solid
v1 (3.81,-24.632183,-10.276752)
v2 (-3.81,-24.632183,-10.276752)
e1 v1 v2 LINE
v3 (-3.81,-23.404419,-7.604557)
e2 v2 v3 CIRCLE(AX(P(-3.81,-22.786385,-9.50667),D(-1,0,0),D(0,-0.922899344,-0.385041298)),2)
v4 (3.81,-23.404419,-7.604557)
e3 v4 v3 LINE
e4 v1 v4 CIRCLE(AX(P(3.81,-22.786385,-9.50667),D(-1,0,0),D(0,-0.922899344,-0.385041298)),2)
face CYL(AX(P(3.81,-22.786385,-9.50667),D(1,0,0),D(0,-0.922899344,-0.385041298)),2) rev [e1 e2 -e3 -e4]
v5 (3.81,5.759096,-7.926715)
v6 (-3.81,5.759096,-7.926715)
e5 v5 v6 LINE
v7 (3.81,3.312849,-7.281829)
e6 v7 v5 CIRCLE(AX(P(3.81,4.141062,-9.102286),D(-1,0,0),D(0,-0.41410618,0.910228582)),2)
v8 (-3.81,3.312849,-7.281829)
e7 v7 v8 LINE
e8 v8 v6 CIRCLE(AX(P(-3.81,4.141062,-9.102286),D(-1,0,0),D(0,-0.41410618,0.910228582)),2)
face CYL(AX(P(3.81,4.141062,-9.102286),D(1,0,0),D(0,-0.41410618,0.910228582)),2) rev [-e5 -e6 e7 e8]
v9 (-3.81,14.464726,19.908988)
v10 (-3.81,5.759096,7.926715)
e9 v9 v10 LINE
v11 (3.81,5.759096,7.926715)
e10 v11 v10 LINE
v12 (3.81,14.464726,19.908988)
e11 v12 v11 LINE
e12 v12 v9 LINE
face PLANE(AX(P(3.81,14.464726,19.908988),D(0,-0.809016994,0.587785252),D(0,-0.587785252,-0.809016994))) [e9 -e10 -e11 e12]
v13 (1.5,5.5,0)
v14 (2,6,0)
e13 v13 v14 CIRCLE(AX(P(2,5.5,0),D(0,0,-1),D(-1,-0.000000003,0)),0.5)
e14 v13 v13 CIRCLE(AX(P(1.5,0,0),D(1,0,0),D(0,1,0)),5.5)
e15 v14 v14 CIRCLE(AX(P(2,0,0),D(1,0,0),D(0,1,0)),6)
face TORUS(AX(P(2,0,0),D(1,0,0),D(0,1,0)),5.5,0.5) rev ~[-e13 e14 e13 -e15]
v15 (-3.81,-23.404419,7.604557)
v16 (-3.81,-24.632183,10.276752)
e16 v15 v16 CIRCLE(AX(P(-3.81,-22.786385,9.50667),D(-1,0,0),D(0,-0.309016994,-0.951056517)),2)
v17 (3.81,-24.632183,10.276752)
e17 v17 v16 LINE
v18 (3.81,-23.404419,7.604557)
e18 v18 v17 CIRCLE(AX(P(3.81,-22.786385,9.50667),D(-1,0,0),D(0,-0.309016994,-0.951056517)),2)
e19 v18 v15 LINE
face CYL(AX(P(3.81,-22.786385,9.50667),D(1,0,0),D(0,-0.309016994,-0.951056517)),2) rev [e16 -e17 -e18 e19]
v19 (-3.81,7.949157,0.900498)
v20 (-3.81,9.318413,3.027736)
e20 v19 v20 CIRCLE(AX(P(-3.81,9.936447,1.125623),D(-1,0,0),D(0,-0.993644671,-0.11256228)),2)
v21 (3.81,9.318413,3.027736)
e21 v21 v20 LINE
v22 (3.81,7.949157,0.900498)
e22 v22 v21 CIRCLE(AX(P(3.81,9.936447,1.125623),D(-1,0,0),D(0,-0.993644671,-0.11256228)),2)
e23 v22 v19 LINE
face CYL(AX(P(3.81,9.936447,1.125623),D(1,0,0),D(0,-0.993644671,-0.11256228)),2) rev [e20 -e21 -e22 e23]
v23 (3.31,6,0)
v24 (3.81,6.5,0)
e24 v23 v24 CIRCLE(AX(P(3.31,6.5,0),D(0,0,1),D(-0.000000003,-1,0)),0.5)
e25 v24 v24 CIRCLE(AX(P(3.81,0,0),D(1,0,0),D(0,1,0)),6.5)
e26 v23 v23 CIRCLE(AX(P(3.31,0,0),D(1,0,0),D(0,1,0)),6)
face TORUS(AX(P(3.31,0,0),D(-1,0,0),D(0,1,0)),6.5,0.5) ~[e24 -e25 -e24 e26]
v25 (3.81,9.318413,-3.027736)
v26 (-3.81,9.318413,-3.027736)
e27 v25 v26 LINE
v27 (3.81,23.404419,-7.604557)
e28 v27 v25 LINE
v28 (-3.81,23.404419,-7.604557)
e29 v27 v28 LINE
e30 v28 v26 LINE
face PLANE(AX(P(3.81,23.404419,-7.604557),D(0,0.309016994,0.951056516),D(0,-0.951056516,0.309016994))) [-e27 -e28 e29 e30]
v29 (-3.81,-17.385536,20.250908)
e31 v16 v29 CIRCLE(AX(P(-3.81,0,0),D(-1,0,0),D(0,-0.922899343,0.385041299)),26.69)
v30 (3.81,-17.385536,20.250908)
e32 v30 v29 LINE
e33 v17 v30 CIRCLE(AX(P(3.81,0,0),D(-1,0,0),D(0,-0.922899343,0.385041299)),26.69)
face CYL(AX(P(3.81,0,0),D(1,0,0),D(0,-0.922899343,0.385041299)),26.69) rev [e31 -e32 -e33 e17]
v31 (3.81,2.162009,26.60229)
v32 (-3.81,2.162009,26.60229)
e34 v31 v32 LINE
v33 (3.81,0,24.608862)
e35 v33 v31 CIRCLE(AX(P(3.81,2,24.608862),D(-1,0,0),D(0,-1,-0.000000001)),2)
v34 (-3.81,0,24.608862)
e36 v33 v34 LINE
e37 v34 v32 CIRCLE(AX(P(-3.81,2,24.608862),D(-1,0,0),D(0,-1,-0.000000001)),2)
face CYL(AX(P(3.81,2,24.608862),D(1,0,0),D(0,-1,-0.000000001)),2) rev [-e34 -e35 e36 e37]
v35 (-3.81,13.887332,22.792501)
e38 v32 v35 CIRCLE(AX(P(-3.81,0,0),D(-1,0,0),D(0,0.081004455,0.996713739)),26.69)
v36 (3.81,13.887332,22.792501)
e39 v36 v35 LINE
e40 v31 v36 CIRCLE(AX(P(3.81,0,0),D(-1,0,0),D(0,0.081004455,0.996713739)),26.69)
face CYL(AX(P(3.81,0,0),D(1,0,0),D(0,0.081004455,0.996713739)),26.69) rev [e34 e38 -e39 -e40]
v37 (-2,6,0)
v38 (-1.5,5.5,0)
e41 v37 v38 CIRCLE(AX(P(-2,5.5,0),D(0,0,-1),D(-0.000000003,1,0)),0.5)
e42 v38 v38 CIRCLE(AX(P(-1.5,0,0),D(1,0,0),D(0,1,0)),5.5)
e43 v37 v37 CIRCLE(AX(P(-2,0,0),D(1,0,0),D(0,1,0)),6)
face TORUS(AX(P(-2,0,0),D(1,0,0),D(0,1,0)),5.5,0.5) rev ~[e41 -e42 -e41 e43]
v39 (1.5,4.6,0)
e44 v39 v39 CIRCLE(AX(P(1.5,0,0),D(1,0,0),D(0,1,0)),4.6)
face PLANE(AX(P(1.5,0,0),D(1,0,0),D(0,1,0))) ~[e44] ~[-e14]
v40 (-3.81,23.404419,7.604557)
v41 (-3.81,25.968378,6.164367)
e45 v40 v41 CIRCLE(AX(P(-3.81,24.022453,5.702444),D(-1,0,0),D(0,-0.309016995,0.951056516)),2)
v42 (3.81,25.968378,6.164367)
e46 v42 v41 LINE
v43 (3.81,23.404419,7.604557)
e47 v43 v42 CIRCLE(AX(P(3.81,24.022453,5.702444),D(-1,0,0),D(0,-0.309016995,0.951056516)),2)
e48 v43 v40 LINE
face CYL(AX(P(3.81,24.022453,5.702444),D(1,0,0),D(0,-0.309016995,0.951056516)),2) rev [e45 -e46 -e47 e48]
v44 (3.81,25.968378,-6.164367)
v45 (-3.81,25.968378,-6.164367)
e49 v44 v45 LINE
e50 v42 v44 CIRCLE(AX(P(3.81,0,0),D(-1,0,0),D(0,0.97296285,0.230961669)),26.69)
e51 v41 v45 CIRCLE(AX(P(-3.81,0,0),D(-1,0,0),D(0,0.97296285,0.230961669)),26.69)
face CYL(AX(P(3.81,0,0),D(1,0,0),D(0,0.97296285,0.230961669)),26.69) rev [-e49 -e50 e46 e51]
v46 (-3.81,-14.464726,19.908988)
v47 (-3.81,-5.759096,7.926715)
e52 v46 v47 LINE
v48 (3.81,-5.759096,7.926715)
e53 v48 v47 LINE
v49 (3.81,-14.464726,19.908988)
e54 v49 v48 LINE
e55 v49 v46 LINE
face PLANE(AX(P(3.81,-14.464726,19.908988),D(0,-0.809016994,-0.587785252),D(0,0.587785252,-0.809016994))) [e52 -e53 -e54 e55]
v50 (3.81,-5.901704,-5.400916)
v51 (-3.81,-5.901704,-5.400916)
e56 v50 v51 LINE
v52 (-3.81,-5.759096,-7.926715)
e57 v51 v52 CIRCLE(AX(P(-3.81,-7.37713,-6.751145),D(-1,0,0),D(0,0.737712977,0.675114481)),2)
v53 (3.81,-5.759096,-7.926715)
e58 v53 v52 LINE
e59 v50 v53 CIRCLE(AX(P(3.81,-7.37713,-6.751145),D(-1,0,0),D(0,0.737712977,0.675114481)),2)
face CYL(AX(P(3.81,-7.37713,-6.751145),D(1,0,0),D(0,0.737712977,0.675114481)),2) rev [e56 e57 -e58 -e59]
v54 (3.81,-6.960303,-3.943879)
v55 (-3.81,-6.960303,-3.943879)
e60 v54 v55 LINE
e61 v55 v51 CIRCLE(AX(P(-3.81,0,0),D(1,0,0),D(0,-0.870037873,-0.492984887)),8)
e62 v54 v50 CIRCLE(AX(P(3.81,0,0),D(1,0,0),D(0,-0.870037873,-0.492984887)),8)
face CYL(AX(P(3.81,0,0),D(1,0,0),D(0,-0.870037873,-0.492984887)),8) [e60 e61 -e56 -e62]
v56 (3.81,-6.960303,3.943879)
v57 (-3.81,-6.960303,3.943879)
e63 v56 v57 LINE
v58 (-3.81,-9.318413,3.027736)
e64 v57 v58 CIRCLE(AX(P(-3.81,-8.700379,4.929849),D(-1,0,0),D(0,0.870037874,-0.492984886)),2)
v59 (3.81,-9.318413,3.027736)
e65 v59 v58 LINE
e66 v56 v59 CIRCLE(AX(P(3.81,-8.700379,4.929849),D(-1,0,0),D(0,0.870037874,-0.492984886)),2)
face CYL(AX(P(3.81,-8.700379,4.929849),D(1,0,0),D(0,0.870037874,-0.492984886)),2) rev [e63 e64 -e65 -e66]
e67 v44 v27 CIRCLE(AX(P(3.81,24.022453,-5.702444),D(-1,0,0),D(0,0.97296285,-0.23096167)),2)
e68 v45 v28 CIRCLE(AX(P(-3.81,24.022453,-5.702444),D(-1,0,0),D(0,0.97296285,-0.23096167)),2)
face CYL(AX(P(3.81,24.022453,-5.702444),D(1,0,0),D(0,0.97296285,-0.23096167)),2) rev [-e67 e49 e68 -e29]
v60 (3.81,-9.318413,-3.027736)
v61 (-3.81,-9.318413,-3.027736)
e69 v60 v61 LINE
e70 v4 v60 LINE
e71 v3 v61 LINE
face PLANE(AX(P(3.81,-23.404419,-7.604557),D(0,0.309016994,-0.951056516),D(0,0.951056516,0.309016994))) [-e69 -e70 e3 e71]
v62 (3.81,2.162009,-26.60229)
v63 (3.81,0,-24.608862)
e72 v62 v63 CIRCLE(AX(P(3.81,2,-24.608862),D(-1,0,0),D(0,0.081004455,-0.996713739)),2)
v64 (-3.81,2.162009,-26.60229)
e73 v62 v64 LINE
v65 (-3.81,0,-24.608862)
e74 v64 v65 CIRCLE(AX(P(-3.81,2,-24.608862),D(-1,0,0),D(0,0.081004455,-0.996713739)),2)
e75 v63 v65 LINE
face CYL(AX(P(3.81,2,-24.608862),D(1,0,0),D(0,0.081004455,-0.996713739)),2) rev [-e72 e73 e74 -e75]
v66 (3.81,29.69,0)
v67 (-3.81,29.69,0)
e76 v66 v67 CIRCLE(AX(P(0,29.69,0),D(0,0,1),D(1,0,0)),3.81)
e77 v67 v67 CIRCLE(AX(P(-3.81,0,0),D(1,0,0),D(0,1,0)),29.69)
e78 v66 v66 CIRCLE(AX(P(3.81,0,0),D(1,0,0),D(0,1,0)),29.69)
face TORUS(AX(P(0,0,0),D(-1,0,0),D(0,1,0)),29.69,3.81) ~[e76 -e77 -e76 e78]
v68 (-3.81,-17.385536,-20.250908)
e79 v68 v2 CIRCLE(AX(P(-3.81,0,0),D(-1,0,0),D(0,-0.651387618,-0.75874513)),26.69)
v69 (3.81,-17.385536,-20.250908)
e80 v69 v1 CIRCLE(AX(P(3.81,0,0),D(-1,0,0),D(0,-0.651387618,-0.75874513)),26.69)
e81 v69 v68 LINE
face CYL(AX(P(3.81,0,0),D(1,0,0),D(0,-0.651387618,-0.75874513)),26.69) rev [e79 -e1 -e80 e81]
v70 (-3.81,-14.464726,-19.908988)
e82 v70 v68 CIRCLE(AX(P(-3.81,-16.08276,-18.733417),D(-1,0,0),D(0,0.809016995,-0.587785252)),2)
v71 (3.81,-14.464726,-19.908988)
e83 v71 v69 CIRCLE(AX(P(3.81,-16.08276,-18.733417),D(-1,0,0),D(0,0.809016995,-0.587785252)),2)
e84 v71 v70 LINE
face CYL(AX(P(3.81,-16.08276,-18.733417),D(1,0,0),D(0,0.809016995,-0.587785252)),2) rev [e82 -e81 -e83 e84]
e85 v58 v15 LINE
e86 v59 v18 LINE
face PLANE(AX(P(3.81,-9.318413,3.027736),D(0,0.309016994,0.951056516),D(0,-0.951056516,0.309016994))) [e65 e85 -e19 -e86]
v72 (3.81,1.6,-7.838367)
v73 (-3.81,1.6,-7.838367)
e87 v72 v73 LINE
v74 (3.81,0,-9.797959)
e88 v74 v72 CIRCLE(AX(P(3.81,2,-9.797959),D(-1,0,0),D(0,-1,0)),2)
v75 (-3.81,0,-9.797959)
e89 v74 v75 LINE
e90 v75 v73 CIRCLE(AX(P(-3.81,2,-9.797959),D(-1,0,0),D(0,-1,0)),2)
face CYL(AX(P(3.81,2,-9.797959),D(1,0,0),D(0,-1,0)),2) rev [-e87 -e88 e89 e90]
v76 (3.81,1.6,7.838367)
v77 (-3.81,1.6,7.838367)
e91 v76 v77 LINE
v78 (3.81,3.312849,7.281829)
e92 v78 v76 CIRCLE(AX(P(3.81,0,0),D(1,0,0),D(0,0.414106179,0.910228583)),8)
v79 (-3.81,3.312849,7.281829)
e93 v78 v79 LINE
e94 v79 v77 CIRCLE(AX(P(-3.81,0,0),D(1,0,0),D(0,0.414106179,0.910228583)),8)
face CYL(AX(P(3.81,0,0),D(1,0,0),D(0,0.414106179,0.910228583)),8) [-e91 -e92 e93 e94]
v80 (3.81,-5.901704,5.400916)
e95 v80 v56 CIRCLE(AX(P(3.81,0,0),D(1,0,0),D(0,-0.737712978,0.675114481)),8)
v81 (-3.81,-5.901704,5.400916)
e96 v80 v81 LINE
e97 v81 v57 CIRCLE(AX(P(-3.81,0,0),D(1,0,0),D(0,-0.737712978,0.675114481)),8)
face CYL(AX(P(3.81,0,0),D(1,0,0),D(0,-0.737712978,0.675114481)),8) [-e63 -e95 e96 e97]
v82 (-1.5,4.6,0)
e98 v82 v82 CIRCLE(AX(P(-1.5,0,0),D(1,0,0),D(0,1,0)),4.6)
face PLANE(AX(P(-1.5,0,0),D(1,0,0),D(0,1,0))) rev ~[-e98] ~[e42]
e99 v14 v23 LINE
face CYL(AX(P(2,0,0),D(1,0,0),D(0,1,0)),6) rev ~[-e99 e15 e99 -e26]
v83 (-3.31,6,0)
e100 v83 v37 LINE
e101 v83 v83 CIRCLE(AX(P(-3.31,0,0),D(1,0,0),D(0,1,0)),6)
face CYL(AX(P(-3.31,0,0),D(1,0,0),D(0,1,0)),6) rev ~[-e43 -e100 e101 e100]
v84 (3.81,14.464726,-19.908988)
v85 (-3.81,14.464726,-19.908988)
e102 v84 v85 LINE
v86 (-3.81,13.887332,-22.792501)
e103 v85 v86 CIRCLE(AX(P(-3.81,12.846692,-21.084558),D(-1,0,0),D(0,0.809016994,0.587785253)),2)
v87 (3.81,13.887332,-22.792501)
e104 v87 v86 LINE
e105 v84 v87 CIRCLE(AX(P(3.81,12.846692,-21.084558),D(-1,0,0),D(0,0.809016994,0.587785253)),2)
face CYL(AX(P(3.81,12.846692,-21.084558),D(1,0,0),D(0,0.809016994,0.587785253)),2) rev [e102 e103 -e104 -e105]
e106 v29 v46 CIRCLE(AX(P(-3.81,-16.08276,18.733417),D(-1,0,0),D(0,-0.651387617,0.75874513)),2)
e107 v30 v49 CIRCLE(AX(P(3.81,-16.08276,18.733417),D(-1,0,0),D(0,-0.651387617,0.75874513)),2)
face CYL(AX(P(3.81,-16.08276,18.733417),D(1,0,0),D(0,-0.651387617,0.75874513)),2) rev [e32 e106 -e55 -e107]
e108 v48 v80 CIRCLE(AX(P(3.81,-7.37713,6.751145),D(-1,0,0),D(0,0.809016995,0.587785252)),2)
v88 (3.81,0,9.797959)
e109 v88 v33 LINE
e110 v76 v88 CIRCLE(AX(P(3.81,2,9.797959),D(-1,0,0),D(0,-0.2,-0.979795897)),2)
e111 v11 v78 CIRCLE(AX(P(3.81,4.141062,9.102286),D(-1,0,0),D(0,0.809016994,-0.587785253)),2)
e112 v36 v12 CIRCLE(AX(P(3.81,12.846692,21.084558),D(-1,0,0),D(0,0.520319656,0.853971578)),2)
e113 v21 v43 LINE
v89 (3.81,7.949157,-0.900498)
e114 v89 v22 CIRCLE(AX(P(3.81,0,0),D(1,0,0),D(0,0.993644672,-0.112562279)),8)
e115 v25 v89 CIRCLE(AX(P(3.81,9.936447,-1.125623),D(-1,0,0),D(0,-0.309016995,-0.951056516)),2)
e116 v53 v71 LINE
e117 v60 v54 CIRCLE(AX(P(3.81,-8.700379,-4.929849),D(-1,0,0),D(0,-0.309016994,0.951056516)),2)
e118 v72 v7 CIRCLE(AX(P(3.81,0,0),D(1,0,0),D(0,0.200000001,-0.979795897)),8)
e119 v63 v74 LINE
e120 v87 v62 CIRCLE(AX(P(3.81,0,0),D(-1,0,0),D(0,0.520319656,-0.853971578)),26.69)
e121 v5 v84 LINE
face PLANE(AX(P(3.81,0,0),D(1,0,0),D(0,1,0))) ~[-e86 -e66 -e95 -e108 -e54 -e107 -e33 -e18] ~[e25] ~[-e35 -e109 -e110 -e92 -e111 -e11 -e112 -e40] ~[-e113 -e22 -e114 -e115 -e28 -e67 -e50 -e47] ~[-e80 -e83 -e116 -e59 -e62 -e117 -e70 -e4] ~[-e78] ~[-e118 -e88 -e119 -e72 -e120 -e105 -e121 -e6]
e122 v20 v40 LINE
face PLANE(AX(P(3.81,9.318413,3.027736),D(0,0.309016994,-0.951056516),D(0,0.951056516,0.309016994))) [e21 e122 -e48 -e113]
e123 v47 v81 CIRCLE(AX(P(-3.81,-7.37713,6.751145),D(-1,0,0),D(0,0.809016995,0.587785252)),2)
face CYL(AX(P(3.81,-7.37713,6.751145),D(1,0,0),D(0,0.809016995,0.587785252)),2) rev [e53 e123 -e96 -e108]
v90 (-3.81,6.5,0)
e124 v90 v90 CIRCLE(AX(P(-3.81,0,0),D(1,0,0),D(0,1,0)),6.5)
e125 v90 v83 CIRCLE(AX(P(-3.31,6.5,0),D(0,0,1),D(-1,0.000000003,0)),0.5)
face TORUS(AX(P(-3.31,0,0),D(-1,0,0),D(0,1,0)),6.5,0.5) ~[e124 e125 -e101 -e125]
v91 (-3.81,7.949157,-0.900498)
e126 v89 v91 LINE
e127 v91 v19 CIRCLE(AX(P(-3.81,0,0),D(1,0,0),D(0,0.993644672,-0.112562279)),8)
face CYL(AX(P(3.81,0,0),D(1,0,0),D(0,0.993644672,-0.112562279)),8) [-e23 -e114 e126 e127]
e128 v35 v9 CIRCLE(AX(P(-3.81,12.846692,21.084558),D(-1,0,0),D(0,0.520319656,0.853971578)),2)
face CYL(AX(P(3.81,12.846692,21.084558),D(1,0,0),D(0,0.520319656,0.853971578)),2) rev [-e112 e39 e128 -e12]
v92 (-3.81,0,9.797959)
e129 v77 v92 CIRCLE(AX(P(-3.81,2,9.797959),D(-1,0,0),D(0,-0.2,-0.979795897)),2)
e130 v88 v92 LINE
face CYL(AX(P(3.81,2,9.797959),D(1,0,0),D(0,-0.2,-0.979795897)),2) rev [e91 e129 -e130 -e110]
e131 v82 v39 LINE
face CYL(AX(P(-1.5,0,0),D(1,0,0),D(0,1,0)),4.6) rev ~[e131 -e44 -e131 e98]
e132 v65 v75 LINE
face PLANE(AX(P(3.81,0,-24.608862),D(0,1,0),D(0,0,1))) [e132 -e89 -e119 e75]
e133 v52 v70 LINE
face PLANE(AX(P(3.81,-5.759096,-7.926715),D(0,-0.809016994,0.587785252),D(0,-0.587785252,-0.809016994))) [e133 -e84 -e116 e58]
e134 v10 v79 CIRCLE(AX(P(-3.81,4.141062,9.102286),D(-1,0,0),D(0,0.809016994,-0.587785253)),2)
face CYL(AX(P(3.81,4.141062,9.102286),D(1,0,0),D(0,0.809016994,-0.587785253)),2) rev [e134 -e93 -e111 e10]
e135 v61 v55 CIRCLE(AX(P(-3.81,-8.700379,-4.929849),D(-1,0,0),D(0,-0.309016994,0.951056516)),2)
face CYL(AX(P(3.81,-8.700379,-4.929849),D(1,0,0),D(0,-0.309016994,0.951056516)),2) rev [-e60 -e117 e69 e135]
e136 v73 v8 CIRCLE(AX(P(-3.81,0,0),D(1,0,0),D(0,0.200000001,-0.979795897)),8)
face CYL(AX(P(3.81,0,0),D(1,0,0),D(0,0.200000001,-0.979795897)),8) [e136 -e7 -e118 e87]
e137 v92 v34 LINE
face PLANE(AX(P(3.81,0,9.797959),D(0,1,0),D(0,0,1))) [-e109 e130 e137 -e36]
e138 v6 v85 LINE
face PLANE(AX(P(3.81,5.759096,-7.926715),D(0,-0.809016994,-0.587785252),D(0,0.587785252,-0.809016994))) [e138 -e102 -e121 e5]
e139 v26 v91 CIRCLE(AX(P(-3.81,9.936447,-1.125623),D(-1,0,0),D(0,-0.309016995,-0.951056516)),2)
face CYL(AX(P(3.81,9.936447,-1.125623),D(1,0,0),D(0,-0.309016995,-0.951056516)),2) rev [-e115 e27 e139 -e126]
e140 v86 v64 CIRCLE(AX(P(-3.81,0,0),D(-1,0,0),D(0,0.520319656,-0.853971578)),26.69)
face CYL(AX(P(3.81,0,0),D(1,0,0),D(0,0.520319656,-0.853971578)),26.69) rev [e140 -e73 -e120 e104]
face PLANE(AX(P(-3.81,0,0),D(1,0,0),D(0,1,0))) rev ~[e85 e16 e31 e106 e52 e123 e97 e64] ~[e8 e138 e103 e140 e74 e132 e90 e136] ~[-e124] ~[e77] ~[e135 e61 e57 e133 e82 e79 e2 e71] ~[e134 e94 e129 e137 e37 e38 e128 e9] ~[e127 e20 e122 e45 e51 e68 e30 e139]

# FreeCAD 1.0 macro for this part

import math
import FreeCAD as App
import Part
import Sketcher

V = App.Vector
Q = App.Units.Quantity

doc = App.newDocument("Part")
body = doc.addObject("PartDesign::Body", "Body")

# Sketch on XY plane
sketch1 = body.newObject("Sketcher::SketchObject", "Sketch")
sketch1.AttachmentSupport = (doc.getObject("XY_Plane"), [""])
sketch1.MapMode = "FlatFace"
sketch1.addGeometry([
    Part.LineSegment(V(-1.5, 4.6, 0), V(1.5, 4.6, 0)),  # 0
    Part.LineSegment(V(1.5, 4.6, 0), V(1.5, 5.5, 0)),  # 1
    Part.ArcOfCircle(Part.Circle(V(2, 5.5, 0), V(0, 0, 1), 0.5), math.radians(90), math.radians(180)),  # 2
    Part.LineSegment(V(2, 6, 0), V(3.31, 6, 0)),  # 3
    Part.ArcOfCircle(Part.Circle(V(3.31, 6.5, 0), V(0, 0, 1), 0.5), math.radians(-90), math.radians(0)),  # 4
    Part.LineSegment(V(3.81, 6.5, 0), V(3.81, 29.69, 0)),  # 5
    Part.ArcOfCircle(Part.Circle(V(0, 29.69, 0), V(0, 0, 1), 3.81), math.radians(0), math.radians(180)),  # 6
    Part.LineSegment(V(-3.81, 29.69, 0), V(-3.81, 6.5, 0)),  # 7
    Part.ArcOfCircle(Part.Circle(V(-3.31, 6.5, 0), V(0, 0, 1), 0.5), math.radians(180), math.radians(270)),  # 8
    Part.LineSegment(V(-3.31, 6, 0), V(-2, 6, 0)),  # 9
    Part.ArcOfCircle(Part.Circle(V(-2, 5.5, 0), V(0, 0, 1), 0.5), math.radians(0), math.radians(90)),  # 10
    Part.LineSegment(V(-1.5, 5.5, 0), V(-1.5, 4.6, 0)),  # 11
], False)
sketch1.addConstraint([
    Sketcher.Constraint("Coincident", 0, 2, 1, 1),
    Sketcher.Constraint("Tangent", 1, 2, 2, 2),
    Sketcher.Constraint("Tangent", 2, 1, 3, 1),
    Sketcher.Constraint("Tangent", 3, 2, 4, 1),
    Sketcher.Constraint("Tangent", 4, 2, 5, 1),
    Sketcher.Constraint("Tangent", 5, 2, 6, 1),
    Sketcher.Constraint("Tangent", 6, 2, 7, 1),
    Sketcher.Constraint("Tangent", 7, 2, 8, 1),
    Sketcher.Constraint("Tangent", 8, 2, 9, 1),
    Sketcher.Constraint("Tangent", 9, 2, 10, 2),
    Sketcher.Constraint("Tangent", 10, 1, 11, 1),
    Sketcher.Constraint("Coincident", 11, 2, 0, 1),
    Sketcher.Constraint("Horizontal", 0),
    Sketcher.Constraint("Vertical", 1),
    Sketcher.Constraint("Horizontal", 3),
    Sketcher.Constraint("Vertical", 5),
    Sketcher.Constraint("Vertical", 7),
    Sketcher.Constraint("Horizontal", 9),
    Sketcher.Constraint("Vertical", 11),
    Sketcher.Constraint("Equal", 2, 4),
    Sketcher.Constraint("Equal", 4, 8),
    Sketcher.Constraint("Equal", 8, 10),
    Sketcher.Constraint("Symmetric", 4, 3, 8, 3, -2),
    Sketcher.Constraint("Equal", 3, 9),
    Sketcher.Constraint("Radius", 2, 0.5),
    Sketcher.Constraint("DistanceX", 0, 1, 0, 2, 3.0),
    Sketcher.Constraint("Radius", 6, 3.81),
    Sketcher.Constraint("DistanceY", 1, 1, 1, 2, 0.9),
    Sketcher.Constraint("DistanceY", -1, 1, 2, 1, 6.0),
    Sketcher.Constraint("DistanceY", 5, 1, 5, 2, 23.19),
])
revolution = body.newObject("PartDesign::Revolution", "Revolution")
revolution.Profile = sketch1
revolution.ReferenceAxis = (sketch1, ["H_Axis"])
revolution.Angle = 360

# Sketch on YZ plane
sketch2 = body.newObject("Sketcher::SketchObject", "Sketch001")
sketch2.AttachmentSupport = (doc.getObject("YZ_Plane"), [""])
sketch2.MapMode = "FlatFace"
sketch2.AttachmentOffset = App.Placement(V(0, 0, 3.81), App.Rotation())
sketch2.addGeometry([
    Part.LineSegment(V(14.5, -19.9, 0), V(5.8, -7.9, 0)),  # 0
    Part.ArcOfCircle(Part.Circle(V(4.1, -9.1, 0), V(0, 0, 1), 2), math.radians(36), math.radians(114)),  # 1
    Part.ArcOfCircle(Part.Circle(V(0, 0, 0), V(0, 0, 1), 8), math.radians(-78.46), math.radians(-65.54)),  # 2
    Part.ArcOfCircle(Part.Circle(V(2, -9.8, 0), V(0, 0, 1), 2), math.radians(102), math.radians(180)),  # 3
    Part.LineSegment(V(0, -9.8, 0), V(0, -24.6, 0)),  # 4
    Part.ArcOfCircle(Part.Circle(V(2, -24.6, 0), V(0, 0, 1), 2), math.radians(-180), math.radians(-85)),  # 5
    Part.ArcOfCircle(Part.Circle(V(0, 0, 0), V(0, 0, 1), 26.7), math.radians(-85), math.radians(-59)),  # 6
    Part.ArcOfCircle(Part.Circle(V(12.8, -21.1, 0), V(0, 0, 1), 2), math.radians(-59), math.radians(36)),  # 7
], False)
sketch2.addConstraint([
    Sketcher.Constraint("Tangent", 0, 2, 1, 1),
    Sketcher.Constraint("Tangent", 1, 2, 2, 2),
    Sketcher.Constraint("Tangent", 2, 1, 3, 1),
    Sketcher.Constraint("Tangent", 3, 2, 4, 1),
    Sketcher.Constraint("Tangent", 4, 2, 5, 1),
    Sketcher.Constraint("Tangent", 5, 2, 6, 1),
    Sketcher.Constraint("Tangent", 6, 2, 7, 1),
    Sketcher.Constraint("Tangent", 7, 2, 0, 1),
    Sketcher.Constraint("Vertical", 4),
    Sketcher.Constraint("Coincident", 2, 3, -1, 1),
    Sketcher.Constraint("Coincident", 6, 3, -1, 1),
    Sketcher.Constraint("Equal", 1, 3),
    Sketcher.Constraint("Equal", 3, 5),
    Sketcher.Constraint("Equal", 5, 7),
    Sketcher.Constraint("PointOnObject", 3, 2, -2),
    Sketcher.Constraint("Radius", 1, 2.0),
    Sketcher.Constraint("Radius", 2, 8.0),
    Sketcher.Constraint("Angle", 0, Q("126 deg")),
    Sketcher.Constraint("Radius", 6, 26.69),
    Sketcher.Constraint("DistanceY", 6, 2, -1, 1, 22.792501),
])
pocket1 = body.newObject("PartDesign::Pocket", "Pocket")
pocket1.Profile = sketch2
pocket1.Length = 7.62
doc.recompute()

polarpattern = body.newObject("PartDesign::PolarPattern", "PolarPattern")
polarpattern.Originals = [pocket1]
polarpattern.Axis = (doc.getObject("X_Axis"), [""])
polarpattern.Angle = 360
polarpattern.Occurrences = 5
body.Tip = polarpattern

doc.recompute()
